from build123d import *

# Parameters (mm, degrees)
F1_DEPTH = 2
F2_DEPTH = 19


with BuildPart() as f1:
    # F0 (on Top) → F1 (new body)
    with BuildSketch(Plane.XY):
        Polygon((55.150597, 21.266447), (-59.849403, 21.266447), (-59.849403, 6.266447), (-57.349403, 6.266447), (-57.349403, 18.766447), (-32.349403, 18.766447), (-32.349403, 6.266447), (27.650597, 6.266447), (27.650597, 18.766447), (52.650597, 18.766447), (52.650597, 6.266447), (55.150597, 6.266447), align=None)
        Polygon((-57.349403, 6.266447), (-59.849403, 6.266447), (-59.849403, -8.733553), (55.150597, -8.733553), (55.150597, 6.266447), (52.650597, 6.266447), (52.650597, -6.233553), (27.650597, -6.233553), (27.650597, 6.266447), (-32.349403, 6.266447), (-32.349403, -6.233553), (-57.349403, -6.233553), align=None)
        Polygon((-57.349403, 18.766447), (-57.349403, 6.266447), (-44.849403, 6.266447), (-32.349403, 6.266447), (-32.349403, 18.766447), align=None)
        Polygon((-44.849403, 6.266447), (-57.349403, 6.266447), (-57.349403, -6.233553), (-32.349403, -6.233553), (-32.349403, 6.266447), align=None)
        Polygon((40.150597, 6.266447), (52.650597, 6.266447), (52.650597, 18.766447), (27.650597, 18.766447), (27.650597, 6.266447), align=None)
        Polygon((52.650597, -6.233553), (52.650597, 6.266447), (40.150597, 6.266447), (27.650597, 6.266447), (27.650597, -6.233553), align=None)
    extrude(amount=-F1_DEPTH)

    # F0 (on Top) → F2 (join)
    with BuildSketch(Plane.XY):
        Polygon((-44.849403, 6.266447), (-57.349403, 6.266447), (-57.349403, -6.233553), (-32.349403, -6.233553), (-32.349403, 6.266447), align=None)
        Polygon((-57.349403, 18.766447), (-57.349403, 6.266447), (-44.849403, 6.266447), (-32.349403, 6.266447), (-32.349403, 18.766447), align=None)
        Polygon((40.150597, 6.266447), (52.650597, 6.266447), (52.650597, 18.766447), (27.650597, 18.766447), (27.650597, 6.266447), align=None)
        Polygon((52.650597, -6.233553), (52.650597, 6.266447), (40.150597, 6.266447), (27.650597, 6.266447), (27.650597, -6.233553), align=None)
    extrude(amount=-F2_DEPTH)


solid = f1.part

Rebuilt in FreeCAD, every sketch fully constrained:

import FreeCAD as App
import Part
import Sketcher
from FreeCAD import Vector


def add_polygon(sketch, points):
    """Adds a closed chain of lines whose ends are joined by coincident constraints."""
    first, n = sketch.GeometryCount, len(points)
    for a, b in zip(points, points[1:] + points[:1]):
        sketch.addGeometry(Part.LineSegment(App.Vector(*a, 0), App.Vector(*b, 0)), False)
    for i in range(n):
        sketch.addConstraint(Sketcher.Constraint("Coincident", first + i, 2, first + (i + 1) % n, 1))

doc = App.newDocument("Part")
body = doc.addObject("PartDesign::Body", "Body")

# Sketch on XY plane
sketch1 = body.newObject("Sketcher::SketchObject", "Sketch")
sketch1.AttachmentSupport = (doc.getObject("XY_Plane"), [""])
sketch1.MapMode = "FlatFace"
add_polygon(sketch1, [(55, 21), (-60, 21), (-60, -9), (55, -9)])  # lines 0-3
sketch1.addConstraint(Sketcher.Constraint("Horizontal", 0))
sketch1.addConstraint(Sketcher.Constraint("Vertical", 1))
sketch1.addConstraint(Sketcher.Constraint("Horizontal", 2))
sketch1.addConstraint(Sketcher.Constraint("Vertical", 3))
sketch1.addConstraint(Sketcher.Constraint("DistanceX", 0, 2, 0, 1, 115.0))
sketch1.addConstraint(Sketcher.Constraint("DistanceY", 1, 2, 1, 1, 30.0))
sketch1.addConstraint(Sketcher.Constraint("DistanceX", 0, 2, -1, 1, 59.849403))
sketch1.addConstraint(Sketcher.Constraint("DistanceY", -1, 1, 0, 2, 21.266447))
pad1 = body.newObject("PartDesign::Pad", "Pad")
pad1.Profile = sketch1
pad1.Length = 2
pad1.Reversed = True

# Sketch on XY plane
sketch2 = body.newObject("Sketcher::SketchObject", "Sketch001")
sketch2.AttachmentSupport = (doc.getObject("XY_Plane"), [""])
sketch2.MapMode = "FlatFace"
add_polygon(sketch2, [(-57, -6), (-32, -6), (-32, 19), (-57, 19)])  # lines 0-3
add_polygon(sketch2, [(53, 19), (28, 19), (28, -6), (53, -6)])  # lines 4-7
sketch2.addConstraint(Sketcher.Constraint("Horizontal", 0))
sketch2.addConstraint(Sketcher.Constraint("Vertical", 1))
sketch2.addConstraint(Sketcher.Constraint("Horizontal", 2))
sketch2.addConstraint(Sketcher.Constraint("Vertical", 3))
sketch2.addConstraint(Sketcher.Constraint("Horizontal", 4))
sketch2.addConstraint(Sketcher.Constraint("Vertical", 5))
sketch2.addConstraint(Sketcher.Constraint("Horizontal", 6))
sketch2.addConstraint(Sketcher.Constraint("Vertical", 7))
sketch2.addConstraint(Sketcher.Constraint("Horizontal", 2, 2, 4, 2))
sketch2.addConstraint(Sketcher.Constraint("Horizontal", 3, 2, 5, 2))
sketch2.addConstraint(Sketcher.Constraint("Equal", 2, 4))
sketch2.addConstraint(Sketcher.Constraint("Equal", 6, 1))
sketch2.addConstraint(Sketcher.Constraint("DistanceX", 0, 1, 0, 2, 25.0))
sketch2.addConstraint(Sketcher.Constraint("DistanceX", 1, 2, 4, 2, 60.0))
sketch2.addConstraint(Sketcher.Constraint("DistanceX", 0, 2, -1, 1, 32.349403))
sketch2.addConstraint(Sketcher.Constraint("DistanceY", 0, 2, -1, 1, 6.233553))
pad2 = body.newObject("PartDesign::Pad", "Pad001")
pad2.Profile = sketch2
pad2.Length = 19
pad2.Reversed = True

doc.recompute()
